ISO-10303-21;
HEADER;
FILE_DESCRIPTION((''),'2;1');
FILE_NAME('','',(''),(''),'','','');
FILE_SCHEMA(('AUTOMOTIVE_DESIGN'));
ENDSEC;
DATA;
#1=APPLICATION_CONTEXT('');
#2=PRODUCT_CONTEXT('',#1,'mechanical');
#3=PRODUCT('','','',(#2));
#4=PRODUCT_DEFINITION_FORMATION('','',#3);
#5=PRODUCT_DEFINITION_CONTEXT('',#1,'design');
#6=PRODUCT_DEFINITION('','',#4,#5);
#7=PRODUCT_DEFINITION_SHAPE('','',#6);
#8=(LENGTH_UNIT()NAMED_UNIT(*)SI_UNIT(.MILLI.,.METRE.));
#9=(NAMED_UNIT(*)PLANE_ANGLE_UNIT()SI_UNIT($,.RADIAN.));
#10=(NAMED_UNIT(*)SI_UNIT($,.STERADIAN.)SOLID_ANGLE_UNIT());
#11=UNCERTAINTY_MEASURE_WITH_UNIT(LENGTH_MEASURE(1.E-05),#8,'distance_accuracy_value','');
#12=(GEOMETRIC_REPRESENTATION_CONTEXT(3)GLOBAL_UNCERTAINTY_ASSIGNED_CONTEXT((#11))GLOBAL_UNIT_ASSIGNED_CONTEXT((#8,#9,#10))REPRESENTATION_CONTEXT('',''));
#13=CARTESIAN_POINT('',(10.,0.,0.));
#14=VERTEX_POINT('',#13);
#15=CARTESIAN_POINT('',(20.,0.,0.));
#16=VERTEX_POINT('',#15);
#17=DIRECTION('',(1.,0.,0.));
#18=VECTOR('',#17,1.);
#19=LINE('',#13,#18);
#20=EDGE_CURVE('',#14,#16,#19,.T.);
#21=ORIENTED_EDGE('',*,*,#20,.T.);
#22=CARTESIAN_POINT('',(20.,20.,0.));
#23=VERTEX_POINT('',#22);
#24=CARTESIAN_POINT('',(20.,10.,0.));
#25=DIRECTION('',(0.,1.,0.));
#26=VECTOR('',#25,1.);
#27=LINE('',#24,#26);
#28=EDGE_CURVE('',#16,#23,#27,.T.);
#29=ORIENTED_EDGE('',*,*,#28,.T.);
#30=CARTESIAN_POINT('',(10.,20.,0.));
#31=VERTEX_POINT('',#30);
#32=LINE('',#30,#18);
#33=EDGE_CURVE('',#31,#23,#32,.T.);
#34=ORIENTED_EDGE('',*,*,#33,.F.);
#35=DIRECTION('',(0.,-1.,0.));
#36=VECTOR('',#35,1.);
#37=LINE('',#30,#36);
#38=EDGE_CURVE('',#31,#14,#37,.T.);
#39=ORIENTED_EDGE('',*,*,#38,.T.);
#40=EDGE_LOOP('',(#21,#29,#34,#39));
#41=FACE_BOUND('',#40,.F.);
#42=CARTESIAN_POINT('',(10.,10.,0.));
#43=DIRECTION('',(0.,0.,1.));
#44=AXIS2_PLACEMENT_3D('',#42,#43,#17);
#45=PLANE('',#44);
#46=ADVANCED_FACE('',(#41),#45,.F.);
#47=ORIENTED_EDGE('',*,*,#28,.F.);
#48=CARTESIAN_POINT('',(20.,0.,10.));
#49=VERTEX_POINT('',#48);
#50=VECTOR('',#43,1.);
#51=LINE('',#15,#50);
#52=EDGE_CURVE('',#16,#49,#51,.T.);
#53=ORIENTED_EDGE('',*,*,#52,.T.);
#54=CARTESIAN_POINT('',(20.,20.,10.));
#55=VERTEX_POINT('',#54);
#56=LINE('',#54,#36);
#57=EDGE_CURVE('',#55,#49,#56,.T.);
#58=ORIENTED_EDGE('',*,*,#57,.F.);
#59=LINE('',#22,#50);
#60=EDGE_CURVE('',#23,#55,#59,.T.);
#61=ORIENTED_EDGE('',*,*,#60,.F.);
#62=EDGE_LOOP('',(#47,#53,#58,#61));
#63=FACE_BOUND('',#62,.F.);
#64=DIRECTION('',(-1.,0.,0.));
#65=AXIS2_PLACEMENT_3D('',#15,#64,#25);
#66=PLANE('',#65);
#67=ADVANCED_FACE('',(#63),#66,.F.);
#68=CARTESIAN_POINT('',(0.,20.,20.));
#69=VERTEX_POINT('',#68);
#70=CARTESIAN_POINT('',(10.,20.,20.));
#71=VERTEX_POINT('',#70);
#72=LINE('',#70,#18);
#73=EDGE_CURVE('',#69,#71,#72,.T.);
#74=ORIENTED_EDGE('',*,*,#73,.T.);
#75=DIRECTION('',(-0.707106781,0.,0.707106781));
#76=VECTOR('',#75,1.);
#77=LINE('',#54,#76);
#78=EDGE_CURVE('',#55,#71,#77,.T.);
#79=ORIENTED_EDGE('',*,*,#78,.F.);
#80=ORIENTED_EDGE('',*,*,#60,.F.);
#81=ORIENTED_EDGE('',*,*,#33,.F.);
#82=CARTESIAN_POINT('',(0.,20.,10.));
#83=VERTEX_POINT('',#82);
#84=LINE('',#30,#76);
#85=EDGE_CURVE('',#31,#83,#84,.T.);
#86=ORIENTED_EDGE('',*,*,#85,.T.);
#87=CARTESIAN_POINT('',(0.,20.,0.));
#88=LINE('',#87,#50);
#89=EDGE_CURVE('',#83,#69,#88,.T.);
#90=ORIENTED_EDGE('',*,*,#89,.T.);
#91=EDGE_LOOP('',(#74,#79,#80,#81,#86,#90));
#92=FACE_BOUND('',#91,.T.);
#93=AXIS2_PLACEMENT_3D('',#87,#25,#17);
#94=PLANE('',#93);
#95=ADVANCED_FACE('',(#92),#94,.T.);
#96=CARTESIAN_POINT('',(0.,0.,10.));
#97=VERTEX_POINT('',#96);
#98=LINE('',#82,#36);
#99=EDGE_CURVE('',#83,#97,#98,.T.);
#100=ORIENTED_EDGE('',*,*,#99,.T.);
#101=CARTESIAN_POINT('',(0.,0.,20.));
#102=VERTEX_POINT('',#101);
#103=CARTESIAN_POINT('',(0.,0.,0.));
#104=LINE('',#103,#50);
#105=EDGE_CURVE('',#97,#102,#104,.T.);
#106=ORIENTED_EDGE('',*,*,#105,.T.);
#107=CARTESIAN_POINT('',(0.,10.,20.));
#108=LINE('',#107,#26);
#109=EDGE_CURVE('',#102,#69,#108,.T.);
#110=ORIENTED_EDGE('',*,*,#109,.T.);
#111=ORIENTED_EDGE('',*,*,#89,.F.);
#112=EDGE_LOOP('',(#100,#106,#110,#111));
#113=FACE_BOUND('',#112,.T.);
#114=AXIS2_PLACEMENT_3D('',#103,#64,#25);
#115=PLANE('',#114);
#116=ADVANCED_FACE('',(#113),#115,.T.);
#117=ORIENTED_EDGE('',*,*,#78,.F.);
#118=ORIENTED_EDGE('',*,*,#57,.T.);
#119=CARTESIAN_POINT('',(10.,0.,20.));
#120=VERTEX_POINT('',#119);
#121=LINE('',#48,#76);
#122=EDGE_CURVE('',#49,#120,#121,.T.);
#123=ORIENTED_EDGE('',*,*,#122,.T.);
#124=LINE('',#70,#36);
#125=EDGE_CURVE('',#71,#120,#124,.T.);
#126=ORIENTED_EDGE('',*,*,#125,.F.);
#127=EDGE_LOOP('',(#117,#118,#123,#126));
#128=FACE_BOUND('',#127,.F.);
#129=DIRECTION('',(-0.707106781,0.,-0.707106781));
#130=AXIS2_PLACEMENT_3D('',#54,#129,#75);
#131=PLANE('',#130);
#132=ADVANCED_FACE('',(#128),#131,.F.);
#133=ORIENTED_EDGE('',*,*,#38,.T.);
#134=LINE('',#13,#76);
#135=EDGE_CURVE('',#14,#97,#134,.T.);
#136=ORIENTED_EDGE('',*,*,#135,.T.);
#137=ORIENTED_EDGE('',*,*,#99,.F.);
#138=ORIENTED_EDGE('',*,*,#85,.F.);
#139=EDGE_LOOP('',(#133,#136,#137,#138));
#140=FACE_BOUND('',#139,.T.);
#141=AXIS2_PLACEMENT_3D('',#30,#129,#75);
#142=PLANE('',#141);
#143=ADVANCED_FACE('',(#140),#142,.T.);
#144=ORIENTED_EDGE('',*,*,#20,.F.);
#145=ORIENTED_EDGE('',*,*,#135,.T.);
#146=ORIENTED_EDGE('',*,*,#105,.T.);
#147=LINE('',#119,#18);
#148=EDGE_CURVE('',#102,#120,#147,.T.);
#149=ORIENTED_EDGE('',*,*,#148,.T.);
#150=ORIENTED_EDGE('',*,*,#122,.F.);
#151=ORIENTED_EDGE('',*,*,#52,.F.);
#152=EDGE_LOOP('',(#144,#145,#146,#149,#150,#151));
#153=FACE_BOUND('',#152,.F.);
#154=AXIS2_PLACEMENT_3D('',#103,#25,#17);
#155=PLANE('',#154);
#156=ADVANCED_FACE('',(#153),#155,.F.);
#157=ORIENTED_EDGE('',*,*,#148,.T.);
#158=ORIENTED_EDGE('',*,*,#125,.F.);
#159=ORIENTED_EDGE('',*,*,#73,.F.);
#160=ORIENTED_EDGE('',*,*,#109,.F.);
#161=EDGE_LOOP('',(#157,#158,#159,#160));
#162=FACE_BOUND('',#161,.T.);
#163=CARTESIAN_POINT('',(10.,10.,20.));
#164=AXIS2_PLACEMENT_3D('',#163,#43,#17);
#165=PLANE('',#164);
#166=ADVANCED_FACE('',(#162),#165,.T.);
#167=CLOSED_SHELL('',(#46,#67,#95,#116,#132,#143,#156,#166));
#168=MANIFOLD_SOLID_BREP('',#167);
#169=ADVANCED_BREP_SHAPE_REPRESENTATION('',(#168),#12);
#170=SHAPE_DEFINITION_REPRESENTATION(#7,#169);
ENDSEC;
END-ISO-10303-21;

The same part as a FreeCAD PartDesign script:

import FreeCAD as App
import Part
import Sketcher
from FreeCAD import Vector
Q = App.Units.Quantity

doc = App.newDocument("Part")
params = doc.addObject("Spreadsheet::Sheet", "Params")
for row, (alias, value) in enumerate([
    ("sketch1_width", "20 mm"),
    ("pad1_length", "20 mm"),
    ("sketch2_width", "10 mm"),
    ("pocket1_length", "20 mm"),
    ("sketch3_width", "10 mm"),
    ("pocket2_length", "20 mm"),
], start=1):
    params.set(f"A{row}", alias)
    params.set(f"B{row}", "=" + value)
    params.setAlias(f"B{row}", alias)

body = doc.addObject("PartDesign::Body", "Body")

# Sketch on XY plane
sketch1 = body.newObject("Sketcher::SketchObject", "Sketch")
sketch1.AttachmentSupport = (doc.getObject("XY_Plane"), [""])
sketch1.MapMode = "FlatFace"
sketch1.addGeometry([
    Part.LineSegment(Vector(0, 20, 0), Vector(0, 0, 0)),
    Part.LineSegment(Vector(0, 0, 0), Vector(20, 0, 0)),
    Part.LineSegment(Vector(20, 0, 0), Vector(20, 20, 0)),
    Part.LineSegment(Vector(20, 20, 0), Vector(0, 20, 0)),
], False)
sketch1.addConstraint([
    Sketcher.Constraint("Coincident", 0, 2, 1, 1),
    Sketcher.Constraint("Coincident", 1, 2, 2, 1),
    Sketcher.Constraint("Coincident", 2, 2, 3, 1),
    Sketcher.Constraint("Coincident", 3, 2, 0, 1),
    Sketcher.Constraint("Vertical", 0),
    Sketcher.Constraint("Horizontal", 1),
    Sketcher.Constraint("Vertical", 2),
    Sketcher.Constraint("Horizontal", 3),
    Sketcher.Constraint("Coincident", 0, 2, -1, 1),
    Sketcher.Constraint("Equal", 3, 0),
    Sketcher.Constraint("DistanceX", 1, 1, 1, 2, Q("20 mm")),
])
sketch1.setExpression("Constraints[10]", "Params.sketch1_width")
pad1 = body.newObject("PartDesign::Pad", "Pad")
pad1.Profile = sketch1
pad1.setExpression("Length", "Params.pad1_length")

# Sketch on XZ plane
sketch2 = body.newObject("Sketcher::SketchObject", "Sketch001")
sketch2.AttachmentSupport = (doc.getObject("XZ_Plane"), [""])
sketch2.MapMode = "FlatFace"
sketch2.AttachmentOffset = App.Placement(Vector(0, 0, -20), App.Rotation())
sketch2.addGeometry([
    Part.LineSegment(Vector(20, 20, 0), Vector(20, 10, 0)),
    Part.LineSegment(Vector(20, 10, 0), Vector(10, 20, 0)),
    Part.LineSegment(Vector(10, 20, 0), Vector(20, 20, 0)),
], False)
sketch2.addConstraint([
    Sketcher.Constraint("Coincident", 0, 2, 1, 1),
    Sketcher.Constraint("Coincident", 1, 2, 2, 1),
    Sketcher.Constraint("Coincident", 2, 2, 0, 1),
    Sketcher.Constraint("Vertical", 0),
    Sketcher.Constraint("Horizontal", 2),
    Sketcher.Constraint("Equal", 2, 0),
    Sketcher.Constraint("DistanceX", 2, 1, 2, 2, Q("10 mm")),
    Sketcher.Constraint("DistanceX", -1, 1, 0, 2, Q("20 mm")),
    Sketcher.Constraint("DistanceY", -1, 1, 0, 2, Q("10 mm")),
])
sketch2.setExpression("Constraints[6]", "Params.sketch2_width")
pocket1 = body.newObject("PartDesign::Pocket", "Pocket")
pocket1.Profile = sketch2
pocket1.setExpression("Length", "Params.pocket1_length")
pocket1.Reversed = True

# Sketch on XZ plane
sketch3 = body.newObject("Sketcher::SketchObject", "Sketch002")
sketch3.AttachmentSupport = (doc.getObject("XZ_Plane"), [""])
sketch3.MapMode = "FlatFace"
sketch3.AttachmentOffset = App.Placement(Vector(0, 0, -20), App.Rotation())
sketch3.addGeometry([
    Part.LineSegment(Vector(10, 0, 0), Vector(0, 0, 0)),
    Part.LineSegment(Vector(0, 0, 0), Vector(0, 10, 0)),
    Part.LineSegment(Vector(0, 10, 0), Vector(10, 0, 0)),
], False)
sketch3.addConstraint([
    Sketcher.Constraint("Coincident", 0, 2, 1, 1),
    Sketcher.Constraint("Coincident", 1, 2, 2, 1),
    Sketcher.Constraint("Coincident", 2, 2, 0, 1),
    Sketcher.Constraint("Horizontal", 0),
    Sketcher.Constraint("Vertical", 1),
    Sketcher.Constraint("Coincident", 0, 2, -1, 1),
    Sketcher.Constraint("Equal", 0, 1),
    Sketcher.Constraint("DistanceX", 0, 2, 0, 1, Q("10 mm")),
])
sketch3.setExpression("Constraints[7]", "Params.sketch3_width")
pocket2 = body.newObject("PartDesign::Pocket", "Pocket001")
pocket2.Profile = sketch3
pocket2.setExpression("Length", "Params.pocket2_length")
pocket2.Reversed = True

doc.recompute()
